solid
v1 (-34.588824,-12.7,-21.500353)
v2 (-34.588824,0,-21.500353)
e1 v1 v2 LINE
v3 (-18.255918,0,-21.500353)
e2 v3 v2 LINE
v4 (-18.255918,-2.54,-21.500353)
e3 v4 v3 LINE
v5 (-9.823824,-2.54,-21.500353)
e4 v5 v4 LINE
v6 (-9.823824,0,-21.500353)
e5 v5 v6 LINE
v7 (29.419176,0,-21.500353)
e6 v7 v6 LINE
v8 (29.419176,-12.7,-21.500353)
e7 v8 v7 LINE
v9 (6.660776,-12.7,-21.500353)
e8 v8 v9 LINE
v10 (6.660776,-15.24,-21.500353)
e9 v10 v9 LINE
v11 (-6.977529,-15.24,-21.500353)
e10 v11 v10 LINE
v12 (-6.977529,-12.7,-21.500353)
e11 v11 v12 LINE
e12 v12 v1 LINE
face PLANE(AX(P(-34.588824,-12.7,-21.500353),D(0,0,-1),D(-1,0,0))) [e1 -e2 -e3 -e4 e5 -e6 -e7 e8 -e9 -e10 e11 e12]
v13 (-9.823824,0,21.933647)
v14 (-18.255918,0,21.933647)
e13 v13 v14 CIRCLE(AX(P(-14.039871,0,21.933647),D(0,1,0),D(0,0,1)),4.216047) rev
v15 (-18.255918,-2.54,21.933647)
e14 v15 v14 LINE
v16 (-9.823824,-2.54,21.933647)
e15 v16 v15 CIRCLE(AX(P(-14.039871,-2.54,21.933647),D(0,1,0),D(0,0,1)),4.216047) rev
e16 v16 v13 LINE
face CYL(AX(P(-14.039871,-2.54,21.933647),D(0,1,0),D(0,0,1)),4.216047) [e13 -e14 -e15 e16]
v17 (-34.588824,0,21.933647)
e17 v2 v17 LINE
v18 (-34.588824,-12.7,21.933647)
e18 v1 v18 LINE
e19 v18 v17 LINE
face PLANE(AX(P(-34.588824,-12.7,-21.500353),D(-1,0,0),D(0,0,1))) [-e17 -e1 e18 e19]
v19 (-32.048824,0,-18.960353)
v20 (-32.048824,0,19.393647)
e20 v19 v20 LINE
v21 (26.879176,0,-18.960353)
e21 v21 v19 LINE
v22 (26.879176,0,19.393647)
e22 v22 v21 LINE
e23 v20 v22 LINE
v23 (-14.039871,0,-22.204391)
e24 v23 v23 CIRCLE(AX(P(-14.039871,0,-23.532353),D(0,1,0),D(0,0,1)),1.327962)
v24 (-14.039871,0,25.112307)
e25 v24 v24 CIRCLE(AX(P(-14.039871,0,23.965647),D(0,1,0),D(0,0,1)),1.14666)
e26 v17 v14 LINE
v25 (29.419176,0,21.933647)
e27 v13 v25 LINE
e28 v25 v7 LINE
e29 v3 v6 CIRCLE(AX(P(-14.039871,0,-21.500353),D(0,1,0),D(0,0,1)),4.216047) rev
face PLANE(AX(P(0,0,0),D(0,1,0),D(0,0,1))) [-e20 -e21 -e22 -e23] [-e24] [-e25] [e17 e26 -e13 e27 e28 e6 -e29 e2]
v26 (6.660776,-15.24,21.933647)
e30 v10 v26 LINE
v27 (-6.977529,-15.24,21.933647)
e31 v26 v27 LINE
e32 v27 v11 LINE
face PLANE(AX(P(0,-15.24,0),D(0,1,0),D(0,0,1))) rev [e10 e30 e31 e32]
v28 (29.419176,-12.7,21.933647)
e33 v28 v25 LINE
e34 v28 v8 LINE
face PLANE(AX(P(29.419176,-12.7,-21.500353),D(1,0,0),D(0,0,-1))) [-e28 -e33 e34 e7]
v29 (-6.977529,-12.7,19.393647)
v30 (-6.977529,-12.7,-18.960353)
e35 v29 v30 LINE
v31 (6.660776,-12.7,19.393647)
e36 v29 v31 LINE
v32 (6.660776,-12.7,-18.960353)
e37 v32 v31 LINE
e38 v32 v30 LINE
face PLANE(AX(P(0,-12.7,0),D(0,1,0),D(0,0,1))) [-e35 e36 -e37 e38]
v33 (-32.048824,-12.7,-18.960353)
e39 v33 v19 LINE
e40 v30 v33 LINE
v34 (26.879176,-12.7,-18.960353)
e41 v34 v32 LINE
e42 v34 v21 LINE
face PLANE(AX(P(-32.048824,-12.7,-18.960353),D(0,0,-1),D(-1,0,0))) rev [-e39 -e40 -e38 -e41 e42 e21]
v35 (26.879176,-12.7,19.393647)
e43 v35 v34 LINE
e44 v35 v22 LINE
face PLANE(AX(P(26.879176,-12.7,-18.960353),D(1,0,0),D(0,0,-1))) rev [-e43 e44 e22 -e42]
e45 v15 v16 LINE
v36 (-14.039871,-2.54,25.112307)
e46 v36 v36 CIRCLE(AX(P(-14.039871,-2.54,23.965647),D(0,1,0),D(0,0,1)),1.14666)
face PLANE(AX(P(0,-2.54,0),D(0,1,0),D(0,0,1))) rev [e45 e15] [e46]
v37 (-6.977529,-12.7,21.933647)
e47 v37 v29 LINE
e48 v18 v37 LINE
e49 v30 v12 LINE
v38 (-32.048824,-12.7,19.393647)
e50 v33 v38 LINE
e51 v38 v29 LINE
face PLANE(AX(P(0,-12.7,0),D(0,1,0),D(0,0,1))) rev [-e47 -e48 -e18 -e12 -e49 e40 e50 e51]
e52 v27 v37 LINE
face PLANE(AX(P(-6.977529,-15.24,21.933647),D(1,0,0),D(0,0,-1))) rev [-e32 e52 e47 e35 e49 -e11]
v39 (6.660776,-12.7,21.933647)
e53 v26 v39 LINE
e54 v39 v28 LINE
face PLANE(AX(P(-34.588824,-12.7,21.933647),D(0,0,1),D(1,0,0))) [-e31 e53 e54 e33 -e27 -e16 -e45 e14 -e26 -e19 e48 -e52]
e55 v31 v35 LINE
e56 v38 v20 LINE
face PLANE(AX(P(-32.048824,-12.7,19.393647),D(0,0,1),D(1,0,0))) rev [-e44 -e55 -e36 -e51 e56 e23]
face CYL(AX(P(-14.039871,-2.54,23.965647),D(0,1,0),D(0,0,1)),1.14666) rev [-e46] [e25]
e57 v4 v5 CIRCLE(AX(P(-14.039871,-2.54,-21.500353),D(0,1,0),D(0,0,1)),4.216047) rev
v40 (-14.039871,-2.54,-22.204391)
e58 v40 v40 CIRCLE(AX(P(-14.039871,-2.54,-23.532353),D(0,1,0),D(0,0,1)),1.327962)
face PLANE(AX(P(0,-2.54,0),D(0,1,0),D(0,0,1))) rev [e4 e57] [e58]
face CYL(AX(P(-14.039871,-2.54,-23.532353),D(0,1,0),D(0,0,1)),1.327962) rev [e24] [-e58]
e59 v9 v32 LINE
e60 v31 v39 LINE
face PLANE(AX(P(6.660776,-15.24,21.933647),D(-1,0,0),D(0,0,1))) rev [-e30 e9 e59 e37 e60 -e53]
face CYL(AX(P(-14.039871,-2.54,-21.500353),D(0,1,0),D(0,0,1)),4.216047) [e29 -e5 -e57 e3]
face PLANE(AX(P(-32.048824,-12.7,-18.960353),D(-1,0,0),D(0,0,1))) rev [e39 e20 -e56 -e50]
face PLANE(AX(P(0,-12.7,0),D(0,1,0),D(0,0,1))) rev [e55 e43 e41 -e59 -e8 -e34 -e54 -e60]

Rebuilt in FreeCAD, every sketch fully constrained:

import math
import FreeCAD as App
import Part
import Sketcher
from FreeCAD import Vector
Q = App.Units.Quantity


def add_polygon(sketch, points):
    """Adds a closed chain of lines whose ends are joined by coincident constraints."""
    first, n = sketch.GeometryCount, len(points)
    for a, b in zip(points, points[1:] + points[:1]):
        sketch.addGeometry(Part.LineSegment(App.Vector(*a, 0), App.Vector(*b, 0)), False)
    for i in range(n):
        sketch.addConstraint(Sketcher.Constraint("Coincident", first + i, 2, first + (i + 1) % n, 1))

doc = App.newDocument("Part")
body = doc.addObject("PartDesign::Body", "Body")

sketch1 = body.newObject("Sketcher::SketchObject", "Sketch")
sketch1.AttachmentSupport = (doc.getObject("XZ_Plane"), [""])
sketch1.MapMode = "FlatFace"
add_polygon(sketch1, [(-35, -22), (-35, 22), (29, 22), (29, -22)])
add_polygon(sketch1, [(27, 19), (-32, 19), (-32, -19), (27, -19)])
sketch1.addConstraint(Sketcher.Constraint("Vertical", 0))
sketch1.addConstraint(Sketcher.Constraint("Horizontal", 1))
sketch1.addConstraint(Sketcher.Constraint("Vertical", 2))
sketch1.addConstraint(Sketcher.Constraint("Horizontal", 3))
sketch1.addConstraint(Sketcher.Constraint("Horizontal", 4))
sketch1.addConstraint(Sketcher.Constraint("Vertical", 5))
sketch1.addConstraint(Sketcher.Constraint("Horizontal", 6))
sketch1.addConstraint(Sketcher.Constraint("Vertical", 7))
sketch1.addConstraint(Sketcher.Constraint("DistanceX", 1, 1, 1, 2, Q("2.52 in")))
sketch1.addConstraint(Sketcher.Constraint("DistanceX", 4, 2, 4, 1, Q("2.32 in")))
sketch1.addConstraint(Sketcher.Constraint("DistanceY", 0, 1, 0, 2, Q("1.71 in")))
sketch1.addConstraint(Sketcher.Constraint("DistanceY", 5, 2, 5, 1, Q("1.51 in")))
sketch1.addConstraint(Sketcher.Constraint("DistanceX", 0, 2, 4, 2, Q("0.1 in")))
sketch1.addConstraint(Sketcher.Constraint("DistanceY", 4, 2, 0, 2, Q("0.1 in")))
sketch1.addConstraint(Sketcher.Constraint("DistanceX", 0, 2, -1, 1, 34.588824))
sketch1.addConstraint(Sketcher.Constraint("DistanceY", -1, 1, 0, 2, 21.933647))
pad1 = body.newObject("PartDesign::Pad", "Pad")
pad1.Profile = sketch1
pad1.Length = Q("0.5 in")

sketch2 = body.newObject("Sketcher::SketchObject", "Sketch001")
sketch2.AttachmentSupport = (doc.getObject("XZ_Plane"), [""])
sketch2.MapMode = "FlatFace"
sketch2.AttachmentOffset = App.Placement(Vector(0, 0, 0.5 * 25.4), App.Rotation())
add_polygon(sketch2, [(-7, 22), (-7, -22), (7, -22), (7, 22)])
sketch2.addConstraint(Sketcher.Constraint("Vertical", 0))
sketch2.addConstraint(Sketcher.Constraint("Horizontal", 1))
sketch2.addConstraint(Sketcher.Constraint("Vertical", 2))
sketch2.addConstraint(Sketcher.Constraint("Horizontal", 3))
sketch2.addConstraint(Sketcher.Constraint("DistanceY", 0, 2, 0, 1, Q("1.71 in")))
sketch2.addConstraint(Sketcher.Constraint("DistanceX", 1, 1, 1, 2, 13.638306))
sketch2.addConstraint(Sketcher.Constraint("DistanceX", 0, 2, -1, 1, 6.977529))
sketch2.addConstraint(Sketcher.Constraint("DistanceY", 0, 2, -1, 1, 21.500353))
pad2 = body.newObject("PartDesign::Pad", "Pad001")
pad2.Profile = sketch2
pad2.Length = Q("0.1 in")

sketch3 = body.newObject("Sketcher::SketchObject", "Sketch002")
sketch3.AttachmentSupport = (doc.getObject("XZ_Plane"), [""])
sketch3.MapMode = "FlatFace"
sketch3.addGeometry(Part.ArcOfCircle(Part.Circle(Vector(-14, -21.5, 0), Vector(0, 0, 1), 4.2), math.radians(180), math.radians(360)), False)
sketch3.addGeometry(Part.LineSegment(Vector(-18.3, -21.5, 0), Vector(-9.8, -21.5, 0)), False)
sketch3.addGeometry(Part.Circle(Vector(-14, -23.5, 0), Vector(0, 0, 1), 1.3), False)
sketch3.addGeometry(Part.ArcOfCircle(Part.Circle(Vector(-14, 21.9, 0), Vector(0, 0, 1), 4.2), math.radians(0), math.radians(180)), False)
sketch3.addGeometry(Part.LineSegment(Vector(-9.8, 21.9, 0), Vector(-18.3, 21.9, 0)), False)
sketch3.addGeometry(Part.Circle(Vector(-14, 24, 0), Vector(0, 0, 1), 1.1), False)
sketch3.addConstraint(Sketcher.Constraint("Coincident", 0, 1, 1, 1))
sketch3.addConstraint(Sketcher.Constraint("Coincident", 1, 2, 0, 2))
sketch3.addConstraint(Sketcher.Constraint("Coincident", 3, 1, 4, 1))
sketch3.addConstraint(Sketcher.Constraint("Coincident", 4, 2, 3, 2))
sketch3.addConstraint(Sketcher.Constraint("Horizontal", 1))
sketch3.addConstraint(Sketcher.Constraint("Horizontal", 4))
sketch3.addConstraint(Sketcher.Constraint("Equal", 0, 3))
sketch3.addConstraint(Sketcher.Constraint("Vertical", 0, 3, 2, 3))
sketch3.addConstraint(Sketcher.Constraint("Vertical", 2, 3, 3, 3))
sketch3.addConstraint(Sketcher.Constraint("Vertical", 3, 3, 5, 3))
sketch3.addConstraint(Sketcher.Constraint("DistanceY", 2, 3, 0, 3, Q("0.08 in")))
sketch3.addConstraint(Sketcher.Constraint("DistanceY", 0, 3, 3, 3, Q("1.71 in")))
sketch3.addConstraint(Sketcher.Constraint("DistanceY", 3, 3, 5, 3, Q("0.08 in")))
sketch3.addConstraint(Sketcher.Constraint("DistanceY", 2, 3, 0, 1, Q("0.08 in")))
sketch3.addConstraint(Sketcher.Constraint("DistanceY", 3, 1, 5, 3, Q("0.08 in")))
sketch3.addConstraint(Sketcher.Constraint("Diameter", 5, 2.29332))
sketch3.addConstraint(Sketcher.Constraint("Diameter", 2, 2.655925))
sketch3.addConstraint(Sketcher.Constraint("Radius", 0, 4.216047))
sketch3.addConstraint(Sketcher.Constraint("DistanceX", 0, 3, -1, 1, 14.039871))
sketch3.addConstraint(Sketcher.Constraint("DistanceY", 0, 3, -1, 1, 21.500353))
pad3 = body.newObject("PartDesign::Pad", "Pad002")
pad3.Profile = sketch3
pad3.Length = Q("0.1 in")

doc.recompute()
